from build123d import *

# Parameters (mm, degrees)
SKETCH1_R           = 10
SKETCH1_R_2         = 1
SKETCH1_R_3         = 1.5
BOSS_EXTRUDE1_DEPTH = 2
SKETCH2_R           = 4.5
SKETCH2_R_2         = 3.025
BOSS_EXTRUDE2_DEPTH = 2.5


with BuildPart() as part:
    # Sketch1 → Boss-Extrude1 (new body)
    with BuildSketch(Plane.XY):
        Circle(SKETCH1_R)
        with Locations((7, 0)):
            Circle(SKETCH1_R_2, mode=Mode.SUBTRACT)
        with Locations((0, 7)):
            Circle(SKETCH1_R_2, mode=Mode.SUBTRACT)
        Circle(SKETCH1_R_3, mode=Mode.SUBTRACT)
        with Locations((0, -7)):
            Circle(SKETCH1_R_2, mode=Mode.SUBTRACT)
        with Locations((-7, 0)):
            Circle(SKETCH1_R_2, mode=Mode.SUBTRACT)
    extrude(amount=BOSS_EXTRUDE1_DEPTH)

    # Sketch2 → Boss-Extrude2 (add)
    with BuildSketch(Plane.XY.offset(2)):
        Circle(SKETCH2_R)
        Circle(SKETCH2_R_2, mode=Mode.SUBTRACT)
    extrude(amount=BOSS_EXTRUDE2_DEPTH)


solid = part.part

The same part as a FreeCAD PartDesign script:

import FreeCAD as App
import Part
import Sketcher
from FreeCAD import Vector

doc = App.newDocument("Part")
body = doc.addObject("PartDesign::Body", "Body")

# Sketch on XY plane
sketch1 = body.newObject("Sketcher::SketchObject", "Sketch")
sketch1.AttachmentSupport = (doc.getObject("XY_Plane"), [""])
sketch1.MapMode = "FlatFace"
sketch1.addGeometry(Part.Circle(Vector(0, 0, 0), Vector(0, 0, 1), 10), False)
sketch1.addGeometry(Part.Circle(Vector(-7, 0, 0), Vector(0, 0, 1), 1), False)
sketch1.addGeometry(Part.Circle(Vector(0, -7, 0), Vector(0, 0, 1), 1), False)
sketch1.addGeometry(Part.Circle(Vector(0, 0, 0), Vector(0, 0, 1), 1.5), False)
sketch1.addGeometry(Part.Circle(Vector(7, 0, 0), Vector(0, 0, 1), 1), False)
sketch1.addGeometry(Part.Circle(Vector(0, 7, 0), Vector(0, 0, 1), 1), False)
sketch1.addConstraint(Sketcher.Constraint("Coincident", 0, 3, -1, 1))
sketch1.addConstraint(Sketcher.Constraint("Coincident", 3, 3, -1, 1))
sketch1.addConstraint(Sketcher.Constraint("Equal", 1, 2))
sketch1.addConstraint(Sketcher.Constraint("Equal", 2, 4))
sketch1.addConstraint(Sketcher.Constraint("Equal", 4, 5))
sketch1.addConstraint(Sketcher.Constraint("Symmetric", 1, 3, 4, 3, -1, 1))
sketch1.addConstraint(Sketcher.Constraint("Symmetric", 2, 3, 5, 3, -1, 1))
sketch1.addConstraint(Sketcher.Constraint("PointOnObject", 1, 3, -1))
sketch1.addConstraint(Sketcher.Constraint("PointOnObject", 2, 3, -2))
sketch1.addConstraint(Sketcher.Constraint("Diameter", 0, 20.0))
sketch1.addConstraint(Sketcher.Constraint("Diameter", 1, 2.0))
sketch1.addConstraint(Sketcher.Constraint("Diameter", 3, 3.0))
sketch1.addConstraint(Sketcher.Constraint("DistanceX", 1, 3, -1, 1, 7.0))
sketch1.addConstraint(Sketcher.Constraint("DistanceY", 2, 3, -1, 1, 7.0))
pad1 = body.newObject("PartDesign::Pad", "Pad")
pad1.Profile = sketch1
pad1.Length = 2

# Sketch on XY plane
sketch2 = body.newObject("Sketcher::SketchObject", "Sketch001")
sketch2.AttachmentSupport = (doc.getObject("XY_Plane"), [""])
sketch2.MapMode = "FlatFace"
sketch2.AttachmentOffset = App.Placement(Vector(0, 0, 2), App.Rotation())
sketch2.addGeometry(Part.Circle(Vector(0, 0, 0), Vector(0, 0, 1), 4.5), False)
sketch2.addGeometry(Part.Circle(Vector(0, 0, 0), Vector(0, 0, 1), 3), False)
sketch2.addConstraint(Sketcher.Constraint("Coincident", 0, 3, -1, 1))
sketch2.addConstraint(Sketcher.Constraint("Coincident", 1, 3, -1, 1))
sketch2.addConstraint(Sketcher.Constraint("Diameter", 0, 9.0))
sketch2.addConstraint(Sketcher.Constraint("Diameter", 1, 6.05))
pad2 = body.newObject("PartDesign::Pad", "Pad001")
pad2.Profile = sketch2
pad2.Length = 2.5

doc.recompute()
